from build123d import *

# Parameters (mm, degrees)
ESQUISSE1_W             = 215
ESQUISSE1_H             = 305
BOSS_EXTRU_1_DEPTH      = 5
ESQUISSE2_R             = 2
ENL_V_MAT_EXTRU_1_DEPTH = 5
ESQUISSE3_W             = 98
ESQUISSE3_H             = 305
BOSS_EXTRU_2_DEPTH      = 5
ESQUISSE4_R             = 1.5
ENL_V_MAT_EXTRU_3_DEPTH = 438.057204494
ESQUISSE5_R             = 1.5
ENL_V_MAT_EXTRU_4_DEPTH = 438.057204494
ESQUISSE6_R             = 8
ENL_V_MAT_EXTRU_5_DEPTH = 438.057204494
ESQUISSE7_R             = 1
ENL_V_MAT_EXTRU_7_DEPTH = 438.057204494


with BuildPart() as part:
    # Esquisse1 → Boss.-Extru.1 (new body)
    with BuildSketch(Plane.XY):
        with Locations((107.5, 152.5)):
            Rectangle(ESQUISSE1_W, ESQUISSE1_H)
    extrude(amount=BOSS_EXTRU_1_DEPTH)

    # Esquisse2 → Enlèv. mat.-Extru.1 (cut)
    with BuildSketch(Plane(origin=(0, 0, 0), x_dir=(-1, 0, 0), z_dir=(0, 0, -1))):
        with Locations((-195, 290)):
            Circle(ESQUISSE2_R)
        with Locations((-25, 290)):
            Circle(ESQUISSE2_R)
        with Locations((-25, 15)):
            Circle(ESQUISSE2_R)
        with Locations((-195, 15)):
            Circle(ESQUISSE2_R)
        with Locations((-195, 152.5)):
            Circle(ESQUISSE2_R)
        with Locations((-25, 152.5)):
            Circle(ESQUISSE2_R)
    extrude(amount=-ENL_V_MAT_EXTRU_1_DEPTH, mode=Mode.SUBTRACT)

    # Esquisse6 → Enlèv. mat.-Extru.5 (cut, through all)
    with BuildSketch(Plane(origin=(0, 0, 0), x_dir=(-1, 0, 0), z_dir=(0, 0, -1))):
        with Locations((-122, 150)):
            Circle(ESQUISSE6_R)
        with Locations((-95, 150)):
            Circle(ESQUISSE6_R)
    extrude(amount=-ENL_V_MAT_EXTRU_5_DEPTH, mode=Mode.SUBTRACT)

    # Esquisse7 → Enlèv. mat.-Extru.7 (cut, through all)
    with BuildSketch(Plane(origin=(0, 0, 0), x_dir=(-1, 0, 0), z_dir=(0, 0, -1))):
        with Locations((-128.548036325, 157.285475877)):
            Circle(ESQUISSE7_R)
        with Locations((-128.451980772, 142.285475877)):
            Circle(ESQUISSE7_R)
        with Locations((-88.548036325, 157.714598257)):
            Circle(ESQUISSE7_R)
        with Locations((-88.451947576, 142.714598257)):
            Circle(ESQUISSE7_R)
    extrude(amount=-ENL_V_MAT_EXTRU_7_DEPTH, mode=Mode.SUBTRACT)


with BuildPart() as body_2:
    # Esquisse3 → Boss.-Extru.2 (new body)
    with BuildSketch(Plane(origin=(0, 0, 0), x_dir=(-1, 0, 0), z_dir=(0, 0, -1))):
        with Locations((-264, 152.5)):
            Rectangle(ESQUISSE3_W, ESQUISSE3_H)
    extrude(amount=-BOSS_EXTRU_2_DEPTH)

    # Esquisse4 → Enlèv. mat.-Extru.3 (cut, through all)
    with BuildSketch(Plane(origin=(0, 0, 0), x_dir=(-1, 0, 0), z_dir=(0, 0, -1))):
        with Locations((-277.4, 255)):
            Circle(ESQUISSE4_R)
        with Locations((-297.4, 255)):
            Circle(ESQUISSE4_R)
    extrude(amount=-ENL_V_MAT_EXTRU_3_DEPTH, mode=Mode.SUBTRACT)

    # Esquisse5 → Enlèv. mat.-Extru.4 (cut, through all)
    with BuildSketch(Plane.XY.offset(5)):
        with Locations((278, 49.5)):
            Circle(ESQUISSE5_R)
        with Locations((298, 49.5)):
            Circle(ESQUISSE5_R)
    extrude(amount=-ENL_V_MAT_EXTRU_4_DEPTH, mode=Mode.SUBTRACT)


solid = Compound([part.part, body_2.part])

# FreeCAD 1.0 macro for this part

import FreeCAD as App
import Part
import Sketcher
Q = App.Units.Quantity

doc = App.newDocument("Part")
params = doc.addObject("Spreadsheet::Sheet", "Params")
for row, (alias, value) in enumerate([
    ("sketch1_width", "215 mm"),
    ("sketch1_height", "305 mm"),
    ("pad1_length", "5 mm"),
    ("sketch2_diameter", "4 mm"),
    ("pocket1_length", "5 mm"),
    ("sketch3_diameter", "16 mm"),
    ("sketch4_diameter", "2 mm"),
    ("sketch5_width", "98 mm"),
    ("sketch5_height", "305 mm"),
    ("pad2_length", "5 mm"),
    ("sketch6_diameter", "3 mm"),
    ("sketch7_diameter", "3 mm"),
], start=1):
    params.set(f"A{row}", alias)
    params.set(f"B{row}", "=" + value)
    params.setAlias(f"B{row}", alias)

body = doc.addObject("PartDesign::Body", "Body")

sketch1 = body.newObject("Sketcher::SketchObject", "Sketch")
sketch1.AttachmentSupport = (doc.getObject("XY_Plane"), [""])
sketch1.MapMode = "FlatFace"
sketch1.addGeometry(Part.LineSegment(App.Vector(0, 305, 0), App.Vector(0, 0, 0)), False)
sketch1.addGeometry(Part.LineSegment(App.Vector(0, 0, 0), App.Vector(215, 0, 0)), False)
sketch1.addGeometry(Part.LineSegment(App.Vector(215, 0, 0), App.Vector(215, 305, 0)), False)
sketch1.addGeometry(Part.LineSegment(App.Vector(215, 305, 0), App.Vector(0, 305, 0)), False)
sketch1.addConstraint(Sketcher.Constraint("Coincident", 0, 2, 1, 1))
sketch1.addConstraint(Sketcher.Constraint("Coincident", 1, 2, 2, 1))
sketch1.addConstraint(Sketcher.Constraint("Coincident", 2, 2, 3, 1))
sketch1.addConstraint(Sketcher.Constraint("Coincident", 3, 2, 0, 1))
sketch1.addConstraint(Sketcher.Constraint("Vertical", 0))
sketch1.addConstraint(Sketcher.Constraint("Horizontal", 1))
sketch1.addConstraint(Sketcher.Constraint("Vertical", 2))
sketch1.addConstraint(Sketcher.Constraint("Horizontal", 3))
sketch1.addConstraint(Sketcher.Constraint("Coincident", 0, 2, -1, 1))
sketch1.addConstraint(Sketcher.Constraint("DistanceX", 1, 1, 1, 2, Q("215 mm")))
sketch1.addConstraint(Sketcher.Constraint("DistanceY", 0, 2, 0, 1, Q("305 mm")))
sketch1.setExpression("Constraints[9]", "Params.sketch1_width")
sketch1.setExpression("Constraints[10]", "Params.sketch1_height")
pad1 = body.newObject("PartDesign::Pad", "Pad")
pad1.Profile = sketch1
pad1.setExpression("Length", "Params.pad1_length")

sketch2 = body.newObject("Sketcher::SketchObject", "Sketch001")
sketch2.AttachmentSupport = (doc.getObject("XY_Plane"), [""])
sketch2.MapMode = "FlatFace"
sketch2.addGeometry(Part.Circle(App.Vector(195, 290, 0), App.Vector(0, 0, 1), 2), False)
sketch2.addGeometry(Part.Circle(App.Vector(25, 290, 0), App.Vector(0, 0, 1), 2), False)
sketch2.addGeometry(Part.Circle(App.Vector(25, 15, 0), App.Vector(0, 0, 1), 2), False)
sketch2.addGeometry(Part.Circle(App.Vector(195, 15, 0), App.Vector(0, 0, 1), 2), False)
sketch2.addGeometry(Part.Circle(App.Vector(195, 152.5, 0), App.Vector(0, 0, 1), 2), False)
sketch2.addGeometry(Part.Circle(App.Vector(25, 152.5, 0), App.Vector(0, 0, 1), 2), False)
sketch2.addConstraint(Sketcher.Constraint("Equal", 0, 1))
sketch2.addConstraint(Sketcher.Constraint("Equal", 1, 2))
sketch2.addConstraint(Sketcher.Constraint("Equal", 2, 3))
sketch2.addConstraint(Sketcher.Constraint("Equal", 3, 4))
sketch2.addConstraint(Sketcher.Constraint("Equal", 4, 5))
sketch2.addConstraint(Sketcher.Constraint("Horizontal", 0, 3, 1, 3))
sketch2.addConstraint(Sketcher.Constraint("Horizontal", 2, 3, 3, 3))
sketch2.addConstraint(Sketcher.Constraint("Horizontal", 4, 3, 5, 3))
sketch2.addConstraint(Sketcher.Constraint("Vertical", 1, 3, 2, 3))
sketch2.addConstraint(Sketcher.Constraint("Vertical", 0, 3, 3, 3))
sketch2.addConstraint(Sketcher.Constraint("Vertical", 3, 3, 4, 3))
sketch2.addConstraint(Sketcher.Constraint("Vertical", 2, 3, 5, 3))
sketch2.addConstraint(Sketcher.Constraint("Diameter", 0, Q("4 mm")))
sketch2.addConstraint(Sketcher.Constraint("DistanceX", -1, 1, 0, 3, Q("195 mm")))
sketch2.addConstraint(Sketcher.Constraint("DistanceY", -1, 1, 0, 3, Q("290 mm")))
sketch2.addConstraint(Sketcher.Constraint("DistanceX", -1, 1, 1, 3, Q("25 mm")))
sketch2.addConstraint(Sketcher.Constraint("DistanceY", -1, 1, 2, 3, Q("15 mm")))
sketch2.addConstraint(Sketcher.Constraint("DistanceY", -1, 1, 4, 3, Q("152.5 mm")))
sketch2.setExpression("Constraints[12]", "Params.sketch2_diameter")
pocket1 = body.newObject("PartDesign::Pocket", "Pocket")
pocket1.Profile = sketch2
pocket1.setExpression("Length", "Params.pocket1_length")
pocket1.Reversed = True

sketch3 = body.newObject("Sketcher::SketchObject", "Sketch002")
sketch3.AttachmentSupport = (doc.getObject("XY_Plane"), [""])
sketch3.MapMode = "FlatFace"
sketch3.addGeometry(Part.Circle(App.Vector(122, 150, 0), App.Vector(0, 0, 1), 8), False)
sketch3.addGeometry(Part.Circle(App.Vector(95, 150, 0), App.Vector(0, 0, 1), 8), False)
sketch3.addConstraint(Sketcher.Constraint("Equal", 0, 1))
sketch3.addConstraint(Sketcher.Constraint("Horizontal", 0, 3, 1, 3))
sketch3.addConstraint(Sketcher.Constraint("Diameter", 0, Q("16 mm")))
sketch3.addConstraint(Sketcher.Constraint("DistanceX", -1, 1, 0, 3, Q("122 mm")))
sketch3.addConstraint(Sketcher.Constraint("DistanceY", -1, 1, 0, 3, Q("150 mm")))
sketch3.addConstraint(Sketcher.Constraint("DistanceX", -1, 1, 1, 3, Q("95 mm")))
sketch3.setExpression("Constraints[2]", "Params.sketch3_diameter")
pocket2 = body.newObject("PartDesign::Pocket", "Pocket001")
pocket2.Profile = sketch3
pocket2.Type = "ThroughAll"
pocket2.Reversed = True

sketch4 = body.newObject("Sketcher::SketchObject", "Sketch003")
sketch4.AttachmentSupport = (doc.getObject("XY_Plane"), [""])
sketch4.MapMode = "FlatFace"
sketch4.addGeometry(Part.Circle(App.Vector(128.548036, 157.285476, 0), App.Vector(0, 0, 1), 1), False)
sketch4.addGeometry(Part.Circle(App.Vector(128.451981, 142.285476, 0), App.Vector(0, 0, 1), 1), False)
sketch4.addGeometry(Part.Circle(App.Vector(88.548036, 157.714598, 0), App.Vector(0, 0, 1), 1), False)
sketch4.addGeometry(Part.Circle(App.Vector(88.451948, 142.714598, 0), App.Vector(0, 0, 1), 1), False)
sketch4.addConstraint(Sketcher.Constraint("Equal", 0, 1))
sketch4.addConstraint(Sketcher.Constraint("Equal", 1, 2))
sketch4.addConstraint(Sketcher.Constraint("Equal", 2, 3))
sketch4.addConstraint(Sketcher.Constraint("Diameter", 0, Q("2 mm")))
sketch4.addConstraint(Sketcher.Constraint("DistanceY", 1, 3, 0, 3, Q("15 mm")))
sketch4.addConstraint(Sketcher.Constraint("DistanceX", 2, 3, 0, 3, Q("40 mm")))
sketch4.addConstraint(Sketcher.Constraint("DistanceY", 3, 3, 2, 3, Q("15 mm")))
sketch4.addConstraint(Sketcher.Constraint("DistanceY", -1, 1, 2, 3, Q("157.714598 mm")))
sketch4.addConstraint(Sketcher.Constraint("DistanceX", -1, 1, 1, 3, Q("128.451981 mm")))
sketch4.addConstraint(Sketcher.Constraint("DistanceX", 3, 3, 2, 3, Q("0.096089 mm")))
sketch4.addConstraint(Sketcher.Constraint("DistanceX", -1, 1, 0, 3, Q("128.548036 mm")))
sketch4.addConstraint(Sketcher.Constraint("DistanceY", -1, 1, 0, 3, Q("157.285476 mm")))
sketch4.setExpression("Constraints[3]", "Params.sketch4_diameter")
pocket3 = body.newObject("PartDesign::Pocket", "Pocket002")
pocket3.Profile = sketch4
pocket3.Type = "ThroughAll"
pocket3.Reversed = True
body2 = doc.addObject("PartDesign::Body", "Body001")

sketch5 = body2.newObject("Sketcher::SketchObject", "Sketch004")
sketch5.AttachmentSupport = (doc.getObject("XY_Plane001"), [""])
sketch5.MapMode = "FlatFace"
sketch5.addGeometry(Part.LineSegment(App.Vector(313, 305, 0), App.Vector(313, 0, 0)), False)
sketch5.addGeometry(Part.LineSegment(App.Vector(313, 0, 0), App.Vector(215, 0, 0)), False)
sketch5.addGeometry(Part.LineSegment(App.Vector(215, 0, 0), App.Vector(215, 305, 0)), False)
sketch5.addGeometry(Part.LineSegment(App.Vector(215, 305, 0), App.Vector(313, 305, 0)), False)
sketch5.addConstraint(Sketcher.Constraint("Coincident", 0, 2, 1, 1))
sketch5.addConstraint(Sketcher.Constraint("Coincident", 1, 2, 2, 1))
sketch5.addConstraint(Sketcher.Constraint("Coincident", 2, 2, 3, 1))
sketch5.addConstraint(Sketcher.Constraint("Coincident", 3, 2, 0, 1))
sketch5.addConstraint(Sketcher.Constraint("Vertical", 0))
sketch5.addConstraint(Sketcher.Constraint("Horizontal", 1))
sketch5.addConstraint(Sketcher.Constraint("Vertical", 2))
sketch5.addConstraint(Sketcher.Constraint("Horizontal", 3))
sketch5.addConstraint(Sketcher.Constraint("PointOnObject", 0, 2, -1))
sketch5.addConstraint(Sketcher.Constraint("DistanceX", 1, 2, 1, 1, Q("98 mm")))
sketch5.addConstraint(Sketcher.Constraint("DistanceY", 0, 2, 0, 1, Q("305 mm")))
sketch5.addConstraint(Sketcher.Constraint("DistanceX", -1, 1, 0, 2, Q("313 mm")))
sketch5.setExpression("Constraints[9]", "Params.sketch5_width")
sketch5.setExpression("Constraints[10]", "Params.sketch5_height")
pad2 = body2.newObject("PartDesign::Pad", "Pad001")
pad2.Profile = sketch5
pad2.setExpression("Length", "Params.pad2_length")

sketch6 = body2.newObject("Sketcher::SketchObject", "Sketch005")
sketch6.AttachmentSupport = (doc.getObject("XY_Plane001"), [""])
sketch6.MapMode = "FlatFace"
sketch6.addGeometry(Part.Circle(App.Vector(277.4, 255, 0), App.Vector(0, 0, 1), 1.5), False)
sketch6.addGeometry(Part.Circle(App.Vector(297.4, 255, 0), App.Vector(0, 0, 1), 1.5), False)
sketch6.addConstraint(Sketcher.Constraint("Equal", 0, 1))
sketch6.addConstraint(Sketcher.Constraint("Horizontal", 0, 3, 1, 3))
sketch6.addConstraint(Sketcher.Constraint("Diameter", 0, Q("3 mm")))
sketch6.addConstraint(Sketcher.Constraint("DistanceY", -1, 1, 0, 3, Q("255 mm")))
sketch6.addConstraint(Sketcher.Constraint("DistanceX", 0, 3, 1, 3, Q("20 mm")))
sketch6.addConstraint(Sketcher.Constraint("DistanceX", -1, 1, 0, 3, Q("277.4 mm")))
sketch6.setExpression("Constraints[2]", "Params.sketch6_diameter")
pocket4 = body2.newObject("PartDesign::Pocket", "Pocket003")
pocket4.Profile = sketch6
pocket4.Type = "ThroughAll"
pocket4.Reversed = True

sketch7 = body2.newObject("Sketcher::SketchObject", "Sketch006")
sketch7.AttachmentSupport = (doc.getObject("XY_Plane001"), [""])
sketch7.MapMode = "FlatFace"
sketch7.AttachmentOffset = App.Placement(App.Vector(0, 0, 5), App.Rotation())
sketch7.addGeometry(Part.Circle(App.Vector(278, 49.5, 0), App.Vector(0, 0, 1), 1.5), False)
sketch7.addGeometry(Part.Circle(App.Vector(298, 49.5, 0), App.Vector(0, 0, 1), 1.5), False)
sketch7.addConstraint(Sketcher.Constraint("Equal", 0, 1))
sketch7.addConstraint(Sketcher.Constraint("Horizontal", 0, 3, 1, 3))
sketch7.addConstraint(Sketcher.Constraint("Diameter", 0, Q("3 mm")))
sketch7.addConstraint(Sketcher.Constraint("DistanceX", -1, 1, 0, 3, Q("278 mm")))
sketch7.addConstraint(Sketcher.Constraint("DistanceX", -1, 1, 1, 3, Q("298 mm")))
sketch7.addConstraint(Sketcher.Constraint("DistanceY", -1, 1, 0, 3, Q("49.5 mm")))
sketch7.setExpression("Constraints[2]", "Params.sketch7_diameter")
pocket5 = body2.newObject("PartDesign::Pocket", "Pocket004")
pocket5.Profile = sketch7
pocket5.Type = "ThroughAll"

doc.recompute()
